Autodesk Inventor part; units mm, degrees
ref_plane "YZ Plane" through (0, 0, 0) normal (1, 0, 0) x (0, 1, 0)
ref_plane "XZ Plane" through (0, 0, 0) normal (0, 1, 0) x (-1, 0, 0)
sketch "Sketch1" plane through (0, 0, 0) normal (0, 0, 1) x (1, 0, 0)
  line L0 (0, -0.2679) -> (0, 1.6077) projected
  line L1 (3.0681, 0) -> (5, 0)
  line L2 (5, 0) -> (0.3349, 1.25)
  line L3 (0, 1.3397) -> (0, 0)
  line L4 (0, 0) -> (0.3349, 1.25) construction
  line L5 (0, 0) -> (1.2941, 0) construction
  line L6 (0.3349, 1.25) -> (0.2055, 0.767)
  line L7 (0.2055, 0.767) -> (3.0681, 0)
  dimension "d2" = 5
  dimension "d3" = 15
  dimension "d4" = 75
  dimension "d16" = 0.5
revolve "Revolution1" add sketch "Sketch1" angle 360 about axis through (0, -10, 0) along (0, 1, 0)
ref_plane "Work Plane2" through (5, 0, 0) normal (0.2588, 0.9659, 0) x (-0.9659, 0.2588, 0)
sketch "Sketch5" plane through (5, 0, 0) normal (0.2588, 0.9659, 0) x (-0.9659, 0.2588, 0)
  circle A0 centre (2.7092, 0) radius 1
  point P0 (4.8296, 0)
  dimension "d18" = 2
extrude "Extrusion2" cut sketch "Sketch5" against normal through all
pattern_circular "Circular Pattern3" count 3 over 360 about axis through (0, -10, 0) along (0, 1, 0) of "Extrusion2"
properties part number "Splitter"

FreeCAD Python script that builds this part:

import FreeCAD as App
import Part
import Sketcher
Q = App.Units.Quantity

doc = App.newDocument("Part")
body = doc.addObject("PartDesign::Body", "Body")

sketch1 = body.newObject("Sketcher::SketchObject", "Sketch")
sketch1.AttachmentSupport = (doc.getObject("XY_Plane"), [""])
sketch1.MapMode = "FlatFace"
sketch1.addGeometry([
    Part.LineSegment(App.Vector(0.2, 0.8, 0), App.Vector(3.1, 0, 0)),
    Part.LineSegment(App.Vector(3.1, 0, 0), App.Vector(5, 0, 0)),
    Part.LineSegment(App.Vector(5, 0, 0), App.Vector(0.3, 1.2, 0)),
    Part.LineSegment(App.Vector(0.3, 1.2, 0), App.Vector(0.2, 0.8, 0)),
], False)
sketch1.addConstraint([
    Sketcher.Constraint("Coincident", 0, 2, 1, 1),
    Sketcher.Constraint("Coincident", 1, 2, 2, 1),
    Sketcher.Constraint("Coincident", 2, 2, 3, 1),
    Sketcher.Constraint("Coincident", 3, 2, 0, 1),
    Sketcher.Constraint("Horizontal", 1),
    Sketcher.Constraint("PointOnObject", 0, 2, -1),
    Sketcher.Constraint("Parallel", 0, 2),
    Sketcher.Constraint("Perpendicular", 2, 3),
    Sketcher.Constraint("Angle", 0, Q("-14.9994 deg")),
    Sketcher.Constraint("DistanceX", -1, 1, 1, 2, 5.0),
    Sketcher.Constraint("Distance", 3, 0.5),
    Sketcher.Constraint("DistanceY", -1, 1, 2, 2, 1.25),
])
revolution = body.newObject("PartDesign::Revolution", "Revolution")
revolution.Profile = sketch1
revolution.ReferenceAxis = (sketch1, ["V_Axis"])
revolution.Angle = 360

sketch2 = body.newObject("Sketcher::SketchObject", "Sketch001")
sketch2.Placement = App.Placement(App.Vector(5, 0, 0), App.Rotation(App.Vector(-0.965925826, 0.258819045, 0), App.Vector(0, 0, 0.999999999), App.Vector(0.258819045, 0.965925826, 0), "ZXY"))
sketch2.addGeometry(Part.Circle(App.Vector(2.7, 0, 0), App.Vector(0, 0, 1), 1), False)
sketch2.addConstraint([
    Sketcher.Constraint("PointOnObject", 0, 3, -1),
    Sketcher.Constraint("Diameter", 0, 2.0),
    Sketcher.Constraint("DistanceX", -1, 1, 0, 3, 2.7092),
])
pocket1 = body.newObject("PartDesign::Pocket", "Pocket")
pocket1.Profile = sketch2
pocket1.Type = "ThroughAll"
doc.recompute()

polarpattern = body.newObject("PartDesign::PolarPattern", "PolarPattern")
polarpattern.Originals = [pocket1]
polarpattern.Axis = (doc.getObject("Y_Axis"), [""])
polarpattern.Angle = 360
polarpattern.Occurrences = 3
body.Tip = polarpattern

doc.recompute()
